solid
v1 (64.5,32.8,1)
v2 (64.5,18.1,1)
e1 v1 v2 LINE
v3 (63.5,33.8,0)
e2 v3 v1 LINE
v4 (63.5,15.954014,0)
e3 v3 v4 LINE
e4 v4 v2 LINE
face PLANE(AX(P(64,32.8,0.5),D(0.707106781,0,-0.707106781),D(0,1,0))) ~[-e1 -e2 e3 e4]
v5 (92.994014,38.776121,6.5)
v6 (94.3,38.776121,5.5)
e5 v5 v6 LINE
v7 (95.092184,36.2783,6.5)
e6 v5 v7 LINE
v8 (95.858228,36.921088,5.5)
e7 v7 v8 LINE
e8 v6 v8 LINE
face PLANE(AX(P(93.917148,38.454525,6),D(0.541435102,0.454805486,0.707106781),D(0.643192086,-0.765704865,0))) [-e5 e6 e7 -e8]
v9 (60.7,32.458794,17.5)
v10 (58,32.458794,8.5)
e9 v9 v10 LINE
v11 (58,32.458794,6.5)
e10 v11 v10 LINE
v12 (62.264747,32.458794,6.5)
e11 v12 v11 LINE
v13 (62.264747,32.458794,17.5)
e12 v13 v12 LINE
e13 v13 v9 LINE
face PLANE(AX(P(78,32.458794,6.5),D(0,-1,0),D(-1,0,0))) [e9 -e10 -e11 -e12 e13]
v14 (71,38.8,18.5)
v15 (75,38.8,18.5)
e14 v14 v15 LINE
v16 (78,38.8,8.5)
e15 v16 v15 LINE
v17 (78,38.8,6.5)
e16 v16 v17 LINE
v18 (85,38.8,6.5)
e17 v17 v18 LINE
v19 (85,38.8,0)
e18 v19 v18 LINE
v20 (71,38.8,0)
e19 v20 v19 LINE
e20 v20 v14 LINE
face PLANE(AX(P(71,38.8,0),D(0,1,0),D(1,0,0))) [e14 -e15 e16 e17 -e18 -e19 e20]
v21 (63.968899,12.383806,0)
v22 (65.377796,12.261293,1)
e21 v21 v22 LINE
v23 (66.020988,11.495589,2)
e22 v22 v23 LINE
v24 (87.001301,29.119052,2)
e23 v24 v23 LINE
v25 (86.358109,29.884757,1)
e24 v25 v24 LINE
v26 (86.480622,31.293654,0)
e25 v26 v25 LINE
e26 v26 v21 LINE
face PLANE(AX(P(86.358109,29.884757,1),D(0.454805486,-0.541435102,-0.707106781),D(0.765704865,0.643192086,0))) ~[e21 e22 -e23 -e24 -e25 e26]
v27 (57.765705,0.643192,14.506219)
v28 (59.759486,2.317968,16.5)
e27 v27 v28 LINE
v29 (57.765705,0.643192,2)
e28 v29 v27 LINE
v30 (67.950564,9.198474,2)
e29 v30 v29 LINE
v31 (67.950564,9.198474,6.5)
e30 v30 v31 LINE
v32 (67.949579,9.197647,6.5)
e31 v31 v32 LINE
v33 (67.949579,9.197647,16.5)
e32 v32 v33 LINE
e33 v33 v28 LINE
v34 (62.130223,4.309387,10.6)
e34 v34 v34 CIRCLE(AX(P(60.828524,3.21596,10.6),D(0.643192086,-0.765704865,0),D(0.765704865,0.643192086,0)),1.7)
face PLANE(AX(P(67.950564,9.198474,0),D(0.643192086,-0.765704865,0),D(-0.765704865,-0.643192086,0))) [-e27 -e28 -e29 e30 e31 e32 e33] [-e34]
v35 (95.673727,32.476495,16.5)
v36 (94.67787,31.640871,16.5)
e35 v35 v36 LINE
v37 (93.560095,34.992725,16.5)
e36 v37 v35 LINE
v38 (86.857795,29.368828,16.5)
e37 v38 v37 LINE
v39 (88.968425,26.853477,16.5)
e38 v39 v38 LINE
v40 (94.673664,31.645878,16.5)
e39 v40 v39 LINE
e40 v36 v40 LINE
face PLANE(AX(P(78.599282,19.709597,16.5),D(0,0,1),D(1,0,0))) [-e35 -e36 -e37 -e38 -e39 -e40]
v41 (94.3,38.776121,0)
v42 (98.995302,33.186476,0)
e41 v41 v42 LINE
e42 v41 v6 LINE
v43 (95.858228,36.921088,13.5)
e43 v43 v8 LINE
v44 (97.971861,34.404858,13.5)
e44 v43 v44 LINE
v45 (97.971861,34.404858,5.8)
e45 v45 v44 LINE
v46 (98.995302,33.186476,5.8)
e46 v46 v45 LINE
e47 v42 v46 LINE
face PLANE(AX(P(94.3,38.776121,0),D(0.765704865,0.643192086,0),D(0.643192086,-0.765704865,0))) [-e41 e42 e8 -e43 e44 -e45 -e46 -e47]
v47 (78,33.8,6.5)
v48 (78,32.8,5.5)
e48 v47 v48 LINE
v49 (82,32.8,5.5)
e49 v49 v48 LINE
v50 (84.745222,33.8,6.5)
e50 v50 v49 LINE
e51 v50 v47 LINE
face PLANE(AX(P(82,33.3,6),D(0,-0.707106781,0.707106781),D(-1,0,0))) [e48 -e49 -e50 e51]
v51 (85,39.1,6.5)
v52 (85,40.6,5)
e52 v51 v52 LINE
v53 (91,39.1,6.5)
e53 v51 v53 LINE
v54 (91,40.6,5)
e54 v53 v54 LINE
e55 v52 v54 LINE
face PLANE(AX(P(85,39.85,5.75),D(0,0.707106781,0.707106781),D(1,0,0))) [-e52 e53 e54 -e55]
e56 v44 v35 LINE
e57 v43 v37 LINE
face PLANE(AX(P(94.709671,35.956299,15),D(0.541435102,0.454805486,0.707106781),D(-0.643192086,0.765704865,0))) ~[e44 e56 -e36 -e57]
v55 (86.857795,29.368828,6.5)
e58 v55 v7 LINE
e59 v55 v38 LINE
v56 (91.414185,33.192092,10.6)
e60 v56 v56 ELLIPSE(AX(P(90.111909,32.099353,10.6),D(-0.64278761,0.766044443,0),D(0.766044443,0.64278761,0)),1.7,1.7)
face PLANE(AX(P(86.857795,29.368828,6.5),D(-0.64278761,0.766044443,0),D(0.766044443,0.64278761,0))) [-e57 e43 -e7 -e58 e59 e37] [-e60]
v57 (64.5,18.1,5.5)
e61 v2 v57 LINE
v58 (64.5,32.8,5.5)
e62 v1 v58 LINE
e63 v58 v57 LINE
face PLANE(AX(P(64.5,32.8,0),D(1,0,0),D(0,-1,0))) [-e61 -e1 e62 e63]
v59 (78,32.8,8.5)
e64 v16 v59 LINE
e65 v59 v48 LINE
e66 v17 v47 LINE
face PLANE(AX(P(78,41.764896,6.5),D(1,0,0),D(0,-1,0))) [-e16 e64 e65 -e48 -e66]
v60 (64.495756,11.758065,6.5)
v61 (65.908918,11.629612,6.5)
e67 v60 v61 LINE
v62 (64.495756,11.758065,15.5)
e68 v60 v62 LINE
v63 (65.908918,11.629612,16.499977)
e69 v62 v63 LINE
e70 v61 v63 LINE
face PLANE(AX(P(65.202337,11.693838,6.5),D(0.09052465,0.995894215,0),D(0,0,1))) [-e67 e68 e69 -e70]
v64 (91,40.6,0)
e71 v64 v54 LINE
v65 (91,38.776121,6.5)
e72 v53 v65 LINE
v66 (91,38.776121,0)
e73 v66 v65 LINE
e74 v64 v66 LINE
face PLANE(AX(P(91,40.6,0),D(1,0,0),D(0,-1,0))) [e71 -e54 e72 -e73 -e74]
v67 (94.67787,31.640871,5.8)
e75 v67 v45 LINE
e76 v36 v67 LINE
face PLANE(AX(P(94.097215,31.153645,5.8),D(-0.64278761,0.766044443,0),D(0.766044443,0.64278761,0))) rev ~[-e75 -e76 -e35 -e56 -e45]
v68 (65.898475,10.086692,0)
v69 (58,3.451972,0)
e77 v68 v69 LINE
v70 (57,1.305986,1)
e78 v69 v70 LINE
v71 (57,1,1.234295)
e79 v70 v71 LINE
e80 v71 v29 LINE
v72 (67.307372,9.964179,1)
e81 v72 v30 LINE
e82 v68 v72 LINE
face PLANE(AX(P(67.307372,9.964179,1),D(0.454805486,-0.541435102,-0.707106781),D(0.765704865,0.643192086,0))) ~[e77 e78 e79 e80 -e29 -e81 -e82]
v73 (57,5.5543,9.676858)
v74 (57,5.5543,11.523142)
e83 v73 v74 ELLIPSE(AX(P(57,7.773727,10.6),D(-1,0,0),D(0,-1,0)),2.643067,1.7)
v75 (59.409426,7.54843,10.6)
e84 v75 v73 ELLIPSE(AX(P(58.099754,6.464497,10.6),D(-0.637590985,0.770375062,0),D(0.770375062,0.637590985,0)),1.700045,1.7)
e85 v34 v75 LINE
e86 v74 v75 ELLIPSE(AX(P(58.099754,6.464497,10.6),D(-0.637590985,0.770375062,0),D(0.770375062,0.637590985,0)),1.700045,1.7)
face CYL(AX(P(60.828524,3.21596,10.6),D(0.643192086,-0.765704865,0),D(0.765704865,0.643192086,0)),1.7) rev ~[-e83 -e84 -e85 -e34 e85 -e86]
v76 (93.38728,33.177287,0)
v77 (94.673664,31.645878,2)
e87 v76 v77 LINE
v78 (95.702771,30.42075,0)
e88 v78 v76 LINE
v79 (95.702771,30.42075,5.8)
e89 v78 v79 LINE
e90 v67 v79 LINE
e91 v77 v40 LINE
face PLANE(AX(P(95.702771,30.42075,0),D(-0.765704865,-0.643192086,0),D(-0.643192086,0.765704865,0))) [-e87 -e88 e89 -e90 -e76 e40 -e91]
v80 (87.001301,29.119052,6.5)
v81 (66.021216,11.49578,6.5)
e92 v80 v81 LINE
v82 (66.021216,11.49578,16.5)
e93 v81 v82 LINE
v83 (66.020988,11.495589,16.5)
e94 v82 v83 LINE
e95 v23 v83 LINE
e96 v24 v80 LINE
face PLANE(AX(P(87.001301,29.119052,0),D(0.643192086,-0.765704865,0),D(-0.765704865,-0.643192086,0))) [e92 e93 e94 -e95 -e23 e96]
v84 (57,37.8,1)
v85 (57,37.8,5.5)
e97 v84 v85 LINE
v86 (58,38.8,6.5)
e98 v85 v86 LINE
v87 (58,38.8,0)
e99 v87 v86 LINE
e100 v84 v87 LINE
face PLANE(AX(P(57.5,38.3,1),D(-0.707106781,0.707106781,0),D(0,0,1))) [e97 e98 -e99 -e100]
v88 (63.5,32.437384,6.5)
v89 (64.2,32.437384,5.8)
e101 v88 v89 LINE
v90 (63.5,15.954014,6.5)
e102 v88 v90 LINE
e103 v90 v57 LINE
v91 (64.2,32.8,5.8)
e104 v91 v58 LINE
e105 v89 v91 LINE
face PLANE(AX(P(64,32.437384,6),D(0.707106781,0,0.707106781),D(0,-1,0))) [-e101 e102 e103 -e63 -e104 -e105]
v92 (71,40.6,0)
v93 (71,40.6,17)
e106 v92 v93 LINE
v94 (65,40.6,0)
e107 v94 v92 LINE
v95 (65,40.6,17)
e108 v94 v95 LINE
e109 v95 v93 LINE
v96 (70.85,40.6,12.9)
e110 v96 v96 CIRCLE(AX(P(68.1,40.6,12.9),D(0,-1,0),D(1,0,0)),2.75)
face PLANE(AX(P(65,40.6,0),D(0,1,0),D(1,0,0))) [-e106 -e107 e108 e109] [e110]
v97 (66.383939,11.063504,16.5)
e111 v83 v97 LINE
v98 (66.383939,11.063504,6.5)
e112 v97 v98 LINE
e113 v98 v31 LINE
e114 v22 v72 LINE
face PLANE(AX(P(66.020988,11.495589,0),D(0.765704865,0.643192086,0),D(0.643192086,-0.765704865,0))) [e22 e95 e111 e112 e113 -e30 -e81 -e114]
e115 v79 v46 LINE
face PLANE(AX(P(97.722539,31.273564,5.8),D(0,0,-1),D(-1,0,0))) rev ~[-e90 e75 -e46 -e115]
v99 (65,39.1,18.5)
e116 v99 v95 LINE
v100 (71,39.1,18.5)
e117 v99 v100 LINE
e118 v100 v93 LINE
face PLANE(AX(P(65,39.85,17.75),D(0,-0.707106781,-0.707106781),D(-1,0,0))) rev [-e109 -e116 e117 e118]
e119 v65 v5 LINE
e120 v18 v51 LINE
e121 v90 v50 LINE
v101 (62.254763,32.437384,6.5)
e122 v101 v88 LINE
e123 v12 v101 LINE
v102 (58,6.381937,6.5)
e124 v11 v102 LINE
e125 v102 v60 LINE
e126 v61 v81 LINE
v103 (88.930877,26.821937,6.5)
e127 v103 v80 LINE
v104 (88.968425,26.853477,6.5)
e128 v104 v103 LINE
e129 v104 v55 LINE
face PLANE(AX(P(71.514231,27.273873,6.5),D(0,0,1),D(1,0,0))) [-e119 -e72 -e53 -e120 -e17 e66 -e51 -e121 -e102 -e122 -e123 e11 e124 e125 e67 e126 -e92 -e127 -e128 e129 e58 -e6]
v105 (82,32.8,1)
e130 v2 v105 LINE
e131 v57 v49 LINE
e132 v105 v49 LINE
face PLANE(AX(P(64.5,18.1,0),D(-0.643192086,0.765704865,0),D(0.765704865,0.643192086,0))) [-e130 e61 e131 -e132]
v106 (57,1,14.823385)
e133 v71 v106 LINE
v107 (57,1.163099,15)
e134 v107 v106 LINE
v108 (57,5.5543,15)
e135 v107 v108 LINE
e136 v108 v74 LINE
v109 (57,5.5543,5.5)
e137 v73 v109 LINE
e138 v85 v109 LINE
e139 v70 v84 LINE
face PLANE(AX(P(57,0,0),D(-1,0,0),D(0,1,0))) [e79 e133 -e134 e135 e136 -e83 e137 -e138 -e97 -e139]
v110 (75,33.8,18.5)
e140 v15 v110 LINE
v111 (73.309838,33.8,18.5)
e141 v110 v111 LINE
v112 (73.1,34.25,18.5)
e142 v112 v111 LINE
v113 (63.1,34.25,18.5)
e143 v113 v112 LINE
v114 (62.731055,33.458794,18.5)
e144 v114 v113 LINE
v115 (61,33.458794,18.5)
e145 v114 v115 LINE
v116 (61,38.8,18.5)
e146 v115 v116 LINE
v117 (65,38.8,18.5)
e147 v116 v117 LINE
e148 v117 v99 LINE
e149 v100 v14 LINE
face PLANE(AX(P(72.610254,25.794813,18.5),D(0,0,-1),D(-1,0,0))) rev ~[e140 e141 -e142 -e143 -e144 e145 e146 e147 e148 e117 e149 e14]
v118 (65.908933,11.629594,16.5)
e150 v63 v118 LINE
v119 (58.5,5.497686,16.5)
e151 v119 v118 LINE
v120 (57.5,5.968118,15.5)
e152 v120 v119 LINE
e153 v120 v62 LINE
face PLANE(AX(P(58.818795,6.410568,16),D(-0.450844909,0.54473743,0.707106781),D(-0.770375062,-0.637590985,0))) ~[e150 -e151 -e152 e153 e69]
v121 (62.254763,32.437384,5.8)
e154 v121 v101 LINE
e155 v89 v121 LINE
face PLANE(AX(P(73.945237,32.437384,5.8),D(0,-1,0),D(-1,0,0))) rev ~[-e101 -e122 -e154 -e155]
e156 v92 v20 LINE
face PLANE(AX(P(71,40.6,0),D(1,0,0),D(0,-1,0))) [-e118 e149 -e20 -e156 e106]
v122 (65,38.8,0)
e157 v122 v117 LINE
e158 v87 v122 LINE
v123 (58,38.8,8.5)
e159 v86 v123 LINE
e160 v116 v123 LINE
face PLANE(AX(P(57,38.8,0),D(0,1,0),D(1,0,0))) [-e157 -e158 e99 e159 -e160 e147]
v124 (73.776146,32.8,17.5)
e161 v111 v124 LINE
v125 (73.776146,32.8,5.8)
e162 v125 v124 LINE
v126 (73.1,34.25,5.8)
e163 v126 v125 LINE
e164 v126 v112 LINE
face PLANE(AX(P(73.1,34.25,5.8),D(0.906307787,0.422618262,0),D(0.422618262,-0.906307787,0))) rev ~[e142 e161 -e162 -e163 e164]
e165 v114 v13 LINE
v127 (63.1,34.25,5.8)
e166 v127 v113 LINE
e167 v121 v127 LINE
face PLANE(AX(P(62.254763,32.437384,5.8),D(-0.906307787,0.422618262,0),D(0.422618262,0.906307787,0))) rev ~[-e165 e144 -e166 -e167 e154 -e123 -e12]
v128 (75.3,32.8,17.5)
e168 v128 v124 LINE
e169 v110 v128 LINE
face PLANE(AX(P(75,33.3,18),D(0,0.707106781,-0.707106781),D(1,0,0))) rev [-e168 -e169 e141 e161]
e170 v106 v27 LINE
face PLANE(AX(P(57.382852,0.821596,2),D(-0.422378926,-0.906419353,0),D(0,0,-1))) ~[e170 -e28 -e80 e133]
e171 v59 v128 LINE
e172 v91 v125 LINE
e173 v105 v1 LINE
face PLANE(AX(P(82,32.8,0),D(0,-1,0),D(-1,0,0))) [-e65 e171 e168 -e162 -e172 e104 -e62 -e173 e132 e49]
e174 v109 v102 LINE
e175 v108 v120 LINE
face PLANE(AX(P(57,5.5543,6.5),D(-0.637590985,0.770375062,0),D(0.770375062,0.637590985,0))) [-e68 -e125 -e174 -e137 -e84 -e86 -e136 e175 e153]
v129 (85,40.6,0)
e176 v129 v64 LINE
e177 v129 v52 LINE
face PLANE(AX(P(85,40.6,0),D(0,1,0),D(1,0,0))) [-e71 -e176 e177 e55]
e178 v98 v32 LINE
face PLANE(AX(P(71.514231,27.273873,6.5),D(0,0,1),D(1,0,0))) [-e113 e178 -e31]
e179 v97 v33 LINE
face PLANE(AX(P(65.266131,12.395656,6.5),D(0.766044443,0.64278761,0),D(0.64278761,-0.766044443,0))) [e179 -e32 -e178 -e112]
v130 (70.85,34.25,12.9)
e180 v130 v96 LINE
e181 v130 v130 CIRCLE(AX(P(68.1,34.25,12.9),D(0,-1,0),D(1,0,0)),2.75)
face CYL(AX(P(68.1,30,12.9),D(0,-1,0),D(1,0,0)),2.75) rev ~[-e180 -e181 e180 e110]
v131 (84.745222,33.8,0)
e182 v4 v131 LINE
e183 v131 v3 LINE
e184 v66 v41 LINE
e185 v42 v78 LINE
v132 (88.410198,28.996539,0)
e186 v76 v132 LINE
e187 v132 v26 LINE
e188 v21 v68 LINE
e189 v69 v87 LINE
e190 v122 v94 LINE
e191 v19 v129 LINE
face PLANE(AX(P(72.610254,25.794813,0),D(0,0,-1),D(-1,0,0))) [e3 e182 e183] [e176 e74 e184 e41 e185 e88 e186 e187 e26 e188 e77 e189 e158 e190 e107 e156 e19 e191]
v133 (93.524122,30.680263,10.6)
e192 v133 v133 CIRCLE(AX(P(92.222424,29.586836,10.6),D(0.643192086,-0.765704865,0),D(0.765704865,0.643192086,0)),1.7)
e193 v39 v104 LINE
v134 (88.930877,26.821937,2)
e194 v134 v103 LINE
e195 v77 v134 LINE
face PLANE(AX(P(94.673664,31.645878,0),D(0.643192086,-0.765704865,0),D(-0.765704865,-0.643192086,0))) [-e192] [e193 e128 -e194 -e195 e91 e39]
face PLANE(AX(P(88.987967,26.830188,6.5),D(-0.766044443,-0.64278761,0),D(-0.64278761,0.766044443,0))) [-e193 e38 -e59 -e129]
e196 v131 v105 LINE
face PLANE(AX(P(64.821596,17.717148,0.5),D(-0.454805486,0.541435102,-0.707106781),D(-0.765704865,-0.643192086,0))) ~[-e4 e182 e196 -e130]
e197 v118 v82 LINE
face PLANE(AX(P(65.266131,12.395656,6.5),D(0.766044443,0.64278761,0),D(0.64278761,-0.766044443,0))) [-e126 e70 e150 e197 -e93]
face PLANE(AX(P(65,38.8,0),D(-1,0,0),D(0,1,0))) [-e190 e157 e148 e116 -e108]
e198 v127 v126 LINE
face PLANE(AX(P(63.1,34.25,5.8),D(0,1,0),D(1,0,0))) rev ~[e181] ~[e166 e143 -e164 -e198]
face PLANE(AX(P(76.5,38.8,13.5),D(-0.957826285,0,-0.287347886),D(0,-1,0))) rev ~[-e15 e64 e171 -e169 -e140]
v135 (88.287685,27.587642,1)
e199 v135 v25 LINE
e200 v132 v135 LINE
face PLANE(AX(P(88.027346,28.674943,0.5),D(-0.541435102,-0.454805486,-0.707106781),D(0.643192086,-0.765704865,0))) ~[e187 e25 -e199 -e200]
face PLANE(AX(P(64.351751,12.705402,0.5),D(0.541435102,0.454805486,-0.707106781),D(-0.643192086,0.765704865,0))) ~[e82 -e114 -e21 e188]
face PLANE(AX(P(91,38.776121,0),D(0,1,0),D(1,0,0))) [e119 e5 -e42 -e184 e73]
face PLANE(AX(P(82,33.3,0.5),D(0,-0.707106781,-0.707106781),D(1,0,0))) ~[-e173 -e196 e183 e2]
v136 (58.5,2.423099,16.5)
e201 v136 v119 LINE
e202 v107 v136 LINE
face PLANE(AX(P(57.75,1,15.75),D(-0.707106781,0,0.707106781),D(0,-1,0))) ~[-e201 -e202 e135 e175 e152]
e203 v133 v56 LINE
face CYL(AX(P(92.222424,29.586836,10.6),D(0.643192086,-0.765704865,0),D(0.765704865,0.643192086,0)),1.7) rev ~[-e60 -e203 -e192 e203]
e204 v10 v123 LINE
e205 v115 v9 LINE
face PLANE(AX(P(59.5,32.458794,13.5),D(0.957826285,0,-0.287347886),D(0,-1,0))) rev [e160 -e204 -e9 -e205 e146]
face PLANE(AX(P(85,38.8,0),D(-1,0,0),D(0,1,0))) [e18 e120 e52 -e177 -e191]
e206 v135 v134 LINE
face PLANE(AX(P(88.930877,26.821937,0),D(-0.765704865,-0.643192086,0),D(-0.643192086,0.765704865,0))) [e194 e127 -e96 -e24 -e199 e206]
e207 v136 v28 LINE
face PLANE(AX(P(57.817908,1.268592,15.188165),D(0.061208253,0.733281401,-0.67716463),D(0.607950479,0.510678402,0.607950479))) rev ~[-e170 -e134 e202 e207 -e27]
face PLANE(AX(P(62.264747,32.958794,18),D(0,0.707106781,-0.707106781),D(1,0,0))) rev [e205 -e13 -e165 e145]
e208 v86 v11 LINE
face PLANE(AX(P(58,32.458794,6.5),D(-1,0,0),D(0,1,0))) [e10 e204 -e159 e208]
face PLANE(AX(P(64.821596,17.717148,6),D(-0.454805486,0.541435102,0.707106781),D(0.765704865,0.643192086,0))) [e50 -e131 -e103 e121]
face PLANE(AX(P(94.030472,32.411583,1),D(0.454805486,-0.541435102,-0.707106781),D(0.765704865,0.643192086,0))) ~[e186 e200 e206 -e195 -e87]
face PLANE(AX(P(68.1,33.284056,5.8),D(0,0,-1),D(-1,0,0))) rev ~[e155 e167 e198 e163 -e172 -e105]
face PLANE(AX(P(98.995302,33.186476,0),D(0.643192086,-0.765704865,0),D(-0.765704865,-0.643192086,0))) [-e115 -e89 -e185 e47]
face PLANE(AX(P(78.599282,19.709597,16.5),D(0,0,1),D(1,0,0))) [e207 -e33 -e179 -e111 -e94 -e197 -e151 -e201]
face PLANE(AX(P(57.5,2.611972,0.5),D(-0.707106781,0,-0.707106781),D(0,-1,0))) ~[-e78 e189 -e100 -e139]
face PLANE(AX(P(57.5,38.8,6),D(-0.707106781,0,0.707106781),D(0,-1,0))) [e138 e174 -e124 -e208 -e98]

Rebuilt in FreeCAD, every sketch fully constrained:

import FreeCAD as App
import Part
import Sketcher
Q = App.Units.Quantity


def edges_at(feature, points):
    """Names of the edges that pass closest to the given points."""
    edges = feature.Shape.Edges
    near = lambda p: min(range(len(edges)), key=lambda i: edges[i].distToShape(Part.Vertex(*p))[0])
    return sorted({f"Edge{near(p) + 1}" for p in points})

doc = App.newDocument("Part")
body = doc.addObject("PartDesign::Body", "Body")

# Sketch on XY plane
sketch1 = doc.addObject("Sketcher::SketchObject", "Sketch")
body.addObject(sketch1)
sketch1.AttachmentSupport = (doc.XY_Plane, [""])
sketch1.MapMode = "FlatFace"
sketch1.addGeometry(Part.LineSegment(App.Vector(8, 38.8, 0), App.Vector(0, 38.8, 0)), False)
sketch1.addGeometry(Part.LineSegment(App.Vector(0, 38.8, 0), App.Vector(0, 0, 0)), False)
sketch1.addGeometry(Part.LineSegment(App.Vector(0, 0, 0), App.Vector(11, 9.2, 0)), False)
sketch1.addGeometry(Part.LineSegment(App.Vector(11, 9.2, 0), App.Vector(9, 11.5, 0)), False)
sketch1.addGeometry(Part.LineSegment(App.Vector(9, 11.5, 0), App.Vector(30, 29.1, 0)), False)
sketch1.addGeometry(Part.LineSegment(App.Vector(30, 29.1, 0), App.Vector(31.9, 26.8, 0)), False)
sketch1.addGeometry(Part.LineSegment(App.Vector(31.9, 26.8, 0), App.Vector(37.7, 31.6, 0)), False)
sketch1.addGeometry(Part.LineSegment(App.Vector(37.7, 31.6, 0), App.Vector(38.7, 30.4, 0)), False)
sketch1.addGeometry(Part.LineSegment(App.Vector(38.7, 30.4, 0), App.Vector(42, 33.2, 0)), False)
sketch1.addGeometry(Part.LineSegment(App.Vector(42, 33.2, 0), App.Vector(37.3, 38.8, 0)), False)
sketch1.addGeometry(Part.LineSegment(App.Vector(37.3, 38.8, 0), App.Vector(34, 38.8, 0)), False)
sketch1.addGeometry(Part.LineSegment(App.Vector(34, 38.8, 0), App.Vector(34, 40.6, 0)), False)
sketch1.addGeometry(Part.LineSegment(App.Vector(34, 40.6, 0), App.Vector(28, 40.6, 0)), False)
sketch1.addGeometry(Part.LineSegment(App.Vector(28, 40.6, 0), App.Vector(28, 38.8, 0)), False)
sketch1.addGeometry(Part.LineSegment(App.Vector(28, 38.8, 0), App.Vector(14, 38.8, 0)), False)
sketch1.addGeometry(Part.LineSegment(App.Vector(14, 38.8, 0), App.Vector(14, 40.6, 0)), False)
sketch1.addGeometry(Part.LineSegment(App.Vector(14, 40.6, 0), App.Vector(8, 40.6, 0)), False)
sketch1.addGeometry(Part.LineSegment(App.Vector(8, 40.6, 0), App.Vector(8, 38.8, 0)), False)
sketch1.addGeometry(Part.LineSegment(App.Vector(7.5, 32.8, 0), App.Vector(25, 32.8, 0)), False)
sketch1.addGeometry(Part.LineSegment(App.Vector(25, 32.8, 0), App.Vector(7.5, 18.1, 0)), False)
sketch1.addGeometry(Part.LineSegment(App.Vector(7.5, 18.1, 0), App.Vector(7.5, 32.8, 0)), False)
sketch1.addConstraint(Sketcher.Constraint("Coincident", 0, 2, 1, 1))
sketch1.addConstraint(Sketcher.Constraint("Coincident", 1, 2, 2, 1))
sketch1.addConstraint(Sketcher.Constraint("Coincident", 2, 2, 3, 1))
sketch1.addConstraint(Sketcher.Constraint("Coincident", 3, 2, 4, 1))
sketch1.addConstraint(Sketcher.Constraint("Coincident", 4, 2, 5, 1))
sketch1.addConstraint(Sketcher.Constraint("Coincident", 5, 2, 6, 1))
sketch1.addConstraint(Sketcher.Constraint("Coincident", 6, 2, 7, 1))
sketch1.addConstraint(Sketcher.Constraint("Coincident", 7, 2, 8, 1))
sketch1.addConstraint(Sketcher.Constraint("Coincident", 8, 2, 9, 1))
sketch1.addConstraint(Sketcher.Constraint("Coincident", 9, 2, 10, 1))
sketch1.addConstraint(Sketcher.Constraint("Coincident", 10, 2, 11, 1))
sketch1.addConstraint(Sketcher.Constraint("Coincident", 11, 2, 12, 1))
sketch1.addConstraint(Sketcher.Constraint("Coincident", 12, 2, 13, 1))
sketch1.addConstraint(Sketcher.Constraint("Coincident", 13, 2, 14, 1))
sketch1.addConstraint(Sketcher.Constraint("Coincident", 14, 2, 15, 1))
sketch1.addConstraint(Sketcher.Constraint("Coincident", 15, 2, 16, 1))
sketch1.addConstraint(Sketcher.Constraint("Coincident", 16, 2, 17, 1))
sketch1.addConstraint(Sketcher.Constraint("Coincident", 17, 2, 0, 1))
sketch1.addConstraint(Sketcher.Constraint("Coincident", 18, 2, 19, 1))
sketch1.addConstraint(Sketcher.Constraint("Coincident", 19, 2, 20, 1))
sketch1.addConstraint(Sketcher.Constraint("Coincident", 20, 2, 18, 1))
sketch1.addConstraint(Sketcher.Constraint("Horizontal", 0))
sketch1.addConstraint(Sketcher.Constraint("Vertical", 1))
sketch1.addConstraint(Sketcher.Constraint("Horizontal", 10))
sketch1.addConstraint(Sketcher.Constraint("Vertical", 11))
sketch1.addConstraint(Sketcher.Constraint("Horizontal", 12))
sketch1.addConstraint(Sketcher.Constraint("Vertical", 13))
sketch1.addConstraint(Sketcher.Constraint("Horizontal", 14))
sketch1.addConstraint(Sketcher.Constraint("Vertical", 15))
sketch1.addConstraint(Sketcher.Constraint("Horizontal", 16))
sketch1.addConstraint(Sketcher.Constraint("Vertical", 17))
sketch1.addConstraint(Sketcher.Constraint("Horizontal", 18))
sketch1.addConstraint(Sketcher.Constraint("Vertical", 20))
sketch1.addConstraint(Sketcher.Constraint("Coincident", 1, 2, -1, 1))
sketch1.addConstraint(Sketcher.Constraint("Perpendicular", 2, 3))
sketch1.addConstraint(Sketcher.Constraint("Perpendicular", 3, 4))
sketch1.addConstraint(Sketcher.Constraint("Perpendicular", 4, 5))
sketch1.addConstraint(Sketcher.Constraint("Perpendicular", 5, 6))
sketch1.addConstraint(Sketcher.Constraint("Perpendicular", 6, 7))
sketch1.addConstraint(Sketcher.Constraint("Perpendicular", 7, 8))
sketch1.addConstraint(Sketcher.Constraint("Perpendicular", 8, 9))
sketch1.addConstraint(Sketcher.Constraint("Perpendicular", 9, 19))
sketch1.addConstraint(Sketcher.Constraint("Horizontal", 0, 2, 13, 2))
sketch1.addConstraint(Sketcher.Constraint("Horizontal", 12, 2, 15, 2))
sketch1.addConstraint(Sketcher.Constraint("Equal", 12, 16))
sketch1.addConstraint(Sketcher.Constraint("Equal", 3, 5))
sketch1.addConstraint(Sketcher.Constraint("DistanceX", 0, 2, 0, 1, Q("8 mm")))
sketch1.addConstraint(Sketcher.Constraint("DistanceX", 12, 2, 12, 1, Q("6 mm")))
sketch1.addConstraint(Sketcher.Constraint("DistanceX", 14, 2, 14, 1, Q("14 mm")))
sketch1.addConstraint(Sketcher.Constraint("Distance", 3, Q("3 mm")))
sketch1.addConstraint(Sketcher.Constraint("DistanceX", 10, 2, 10, 1, Q("3.3 mm")))
sketch1.addConstraint(Sketcher.Constraint("DistanceX", 18, 1, 18, 2, Q("17.5 mm")))
sketch1.addConstraint(Sketcher.Constraint("DistanceY", 1, 2, 1, 1, Q("38.8 mm")))
sketch1.addConstraint(Sketcher.Constraint("DistanceY", 13, 2, 13, 1, Q("1.8 mm")))
sketch1.addConstraint(Sketcher.Constraint("DistanceY", 20, 1, 20, 2, Q("14.7 mm")))
sketch1.addConstraint(Sketcher.Constraint("DistanceX", -1, 1, 18, 2, Q("25 mm")))
sketch1.addConstraint(Sketcher.Constraint("DistanceY", 18, 2, 13, 2, Q("6 mm")))
sketch1.addConstraint(Sketcher.Constraint("Distance", 4, Q("27.4 mm")))
sketch1.addConstraint(Sketcher.Constraint("Distance", 6, Q("7.5 mm")))
sketch1.addConstraint(Sketcher.Constraint("Distance", 7, Q("1.6 mm")))
sketch1.addConstraint(Sketcher.Constraint("Distance", 8, Q("4.3 mm")))
sketch1.addConstraint(Sketcher.Constraint("Distance", 9, Q("7.3 mm")))
pad1 = doc.addObject("PartDesign::Pad", "Pad")
body.addObject(pad1)
pad1.Profile = sketch1
pad1.Length = 18.5

# Sketch on XY plane
sketch2 = doc.addObject("Sketcher::SketchObject", "Sketch001")
body.addObject(sketch2)
sketch2.AttachmentSupport = (doc.XY_Plane, [""])
sketch2.MapMode = "FlatFace"
sketch2.AttachmentOffset = App.Placement(App.Vector(0, 0, 6.5), App.Rotation())
sketch2.addGeometry(Part.LineSegment(App.Vector(0, 5.6, 0), App.Vector(8.3, 12.4, 0)), False)
sketch2.addGeometry(Part.LineSegment(App.Vector(8.3, 12.4, 0), App.Vector(11, 9.2, 0)), False)
sketch2.addGeometry(Part.LineSegment(App.Vector(11, 9.2, 0), App.Vector(32, 26.8, 0)), False)
sketch2.addGeometry(Part.LineSegment(App.Vector(32, 26.8, 0), App.Vector(29.9, 29.4, 0)), False)
sketch2.addGeometry(Part.LineSegment(App.Vector(29.9, 29.4, 0), App.Vector(38.9, 37, 0)), False)
sketch2.addGeometry(Part.LineSegment(App.Vector(38.9, 37, 0), App.Vector(34.9, 41.8, 0)), False)
sketch2.addGeometry(Part.LineSegment(App.Vector(34.9, 41.8, 0), App.Vector(21, 41.8, 0)), False)
sketch2.addGeometry(Part.LineSegment(App.Vector(21, 41.8, 0), App.Vector(21, 32.5, 0)), False)
sketch2.addGeometry(Part.LineSegment(App.Vector(21, 32.5, 0), App.Vector(1, 32.5, 0)), False)
sketch2.addGeometry(Part.LineSegment(App.Vector(1, 32.5, 0), App.Vector(1, 41.8, 0)), False)
sketch2.addGeometry(Part.LineSegment(App.Vector(1, 41.8, 0), App.Vector(0, 41.8, 0)), False)
sketch2.addGeometry(Part.LineSegment(App.Vector(0, 41.8, 0), App.Vector(0, 5.6, 0)), False)
sketch2.addConstraint(Sketcher.Constraint("Coincident", 0, 2, 1, 1))
sketch2.addConstraint(Sketcher.Constraint("Coincident", 1, 2, 2, 1))
sketch2.addConstraint(Sketcher.Constraint("Coincident", 2, 2, 3, 1))
sketch2.addConstraint(Sketcher.Constraint("Coincident", 3, 2, 4, 1))
sketch2.addConstraint(Sketcher.Constraint("Coincident", 4, 2, 5, 1))
sketch2.addConstraint(Sketcher.Constraint("Coincident", 5, 2, 6, 1))
sketch2.addConstraint(Sketcher.Constraint("Coincident", 6, 2, 7, 1))
sketch2.addConstraint(Sketcher.Constraint("Coincident", 7, 2, 8, 1))
sketch2.addConstraint(Sketcher.Constraint("Coincident", 8, 2, 9, 1))
sketch2.addConstraint(Sketcher.Constraint("Coincident", 9, 2, 10, 1))
sketch2.addConstraint(Sketcher.Constraint("Coincident", 10, 2, 11, 1))
sketch2.addConstraint(Sketcher.Constraint("Coincident", 11, 2, 0, 1))
sketch2.addConstraint(Sketcher.Constraint("Horizontal", 6))
sketch2.addConstraint(Sketcher.Constraint("Vertical", 7))
sketch2.addConstraint(Sketcher.Constraint("Horizontal", 8))
sketch2.addConstraint(Sketcher.Constraint("Vertical", 9))
sketch2.addConstraint(Sketcher.Constraint("Vertical", 11))
sketch2.addConstraint(Sketcher.Constraint("PointOnObject", 10, 2, -2))
sketch2.addConstraint(Sketcher.Constraint("Perpendicular", 1, 2))
sketch2.addConstraint(Sketcher.Constraint("Perpendicular", 2, 3))
sketch2.addConstraint(Sketcher.Constraint("Perpendicular", 3, 4))
sketch2.addConstraint(Sketcher.Constraint("Perpendicular", 4, 5))
sketch2.addConstraint(Sketcher.Constraint("Horizontal", 6, 2, 10, 2))
sketch2.addConstraint(Sketcher.Constraint("DistanceX", 8, 2, 8, 1, Q("20 mm")))
sketch2.addConstraint(Sketcher.Constraint("Angle", 1, Q("-50 deg")))
sketch2.addConstraint(Sketcher.Constraint("DistanceX", -1, 1, 6, 2, Q("21 mm")))
sketch2.addConstraint(Sketcher.Constraint("DistanceY", -1, 1, 11, 2, Q("5.5543 mm")))
sketch2.addConstraint(Sketcher.Constraint("DistanceY", 0, 2, 9, 2, Q("29.363602 mm")))
sketch2.addConstraint(Sketcher.Constraint("Distance", 0, Q("10.730008 mm")))
sketch2.addConstraint(Sketcher.Constraint("Distance", 1, Q("4.19061 mm")))
sketch2.addConstraint(Sketcher.Constraint("Distance", 2, Q("27.450319 mm")))
sketch2.addConstraint(Sketcher.Constraint("Distance", 3, Q("3.313959 mm")))
sketch2.addConstraint(Sketcher.Constraint("Distance", 4, Q("11.823679 mm")))
sketch2.addConstraint(Sketcher.Constraint("DistanceX", 6, 2, 6, 1, Q("13.890976 mm")))
sketch2.addConstraint(Sketcher.Constraint("DistanceY", 7, 2, 7, 1, Q("9.306102 mm")))
sketch2.addConstraint(Sketcher.Constraint("DistanceY", 9, 1, 9, 2, Q("9.300464 mm")))
pocket1 = doc.addObject("PartDesign::Pocket", "Pocket")
body.addObject(pocket1)
pocket1.Profile = sketch2
pocket1.Length = 13
pocket1.Reversed = True

# Sketch on XY plane
sketch3 = doc.addObject("Sketcher::SketchObject", "Sketch002")
body.addObject(sketch3)
sketch3.AttachmentSupport = (doc.XY_Plane, [""])
sketch3.MapMode = "FlatFace"
sketch3.AttachmentOffset = App.Placement(App.Vector(0, 0, 16.5), App.Rotation())
sketch3.addGeometry(Part.LineSegment(App.Vector(-1, -4, 0), App.Vector(49, 38, 0)), False)
sketch3.addGeometry(Part.LineSegment(App.Vector(49, 38, 0), App.Vector(44, 44, 0)), False)
sketch3.addGeometry(Part.LineSegment(App.Vector(44, 44, 0), App.Vector(-6, 2, 0)), False)
sketch3.addGeometry(Part.LineSegment(App.Vector(-6, 2, 0), App.Vector(-1, -4, 0)), False)
sketch3.addConstraint(Sketcher.Constraint("Coincident", 0, 2, 1, 1))
sketch3.addConstraint(Sketcher.Constraint("Coincident", 1, 2, 2, 1))
sketch3.addConstraint(Sketcher.Constraint("Coincident", 2, 2, 3, 1))
sketch3.addConstraint(Sketcher.Constraint("Coincident", 3, 2, 0, 1))
sketch3.addConstraint(Sketcher.Constraint("Perpendicular", 0, 1))
sketch3.addConstraint(Sketcher.Constraint("Perpendicular", 1, 2))
sketch3.addConstraint(Sketcher.Constraint("Perpendicular", 2, 3))
sketch3.addConstraint(Sketcher.Constraint("Angle", 0, Q("40 deg")))
sketch3.addConstraint(Sketcher.Constraint("Distance", 1, Q("8 mm")))
sketch3.addConstraint(Sketcher.Constraint("DistanceY", -1, 1, 0, 2, Q("37.6435 mm")))
sketch3.addConstraint(Sketcher.Constraint("Distance", 0, Q("65.33443 mm")))
sketch3.addConstraint(Sketcher.Constraint("DistanceX", -1, 1, 0, 2, Q("49.194971 mm")))
pocket2 = doc.addObject("PartDesign::Pocket", "Pocket001")
body.addObject(pocket2)
pocket2.Profile = sketch3
pocket2.Length = 5
pocket2.Reversed = True

# Sketch on XY plane
sketch4 = doc.addObject("Sketcher::SketchObject", "Sketch003")
body.addObject(sketch4)
sketch4.AttachmentSupport = (doc.XY_Plane, [""])
sketch4.MapMode = "FlatFace"
sketch4.AttachmentOffset = App.Placement(App.Vector(0, 0, 5.8), App.Rotation())
sketch4.addGeometry(Part.LineSegment(App.Vector(41.5, 34.8, 0), App.Vector(37.1, 31.2, 0)), False)
sketch4.addGeometry(Part.LineSegment(App.Vector(37.1, 31.2, 0), App.Vector(40, 27.7, 0)), False)
sketch4.addGeometry(Part.LineSegment(App.Vector(40, 27.7, 0), App.Vector(44.3, 31.4, 0)), False)
sketch4.addGeometry(Part.LineSegment(App.Vector(44.3, 31.4, 0), App.Vector(41.5, 34.8, 0)), False)
sketch4.addGeometry(Part.LineSegment(App.Vector(16.1, 34.2, 0), App.Vector(6.1, 34.2, 0)), False)
sketch4.addGeometry(Part.LineSegment(App.Vector(6.1, 34.2, 0), App.Vector(5.3, 32.4, 0)), False)
sketch4.addGeometry(Part.LineSegment(App.Vector(5.3, 32.4, 0), App.Vector(16.9, 32.4, 0)), False)
sketch4.addGeometry(Part.LineSegment(App.Vector(16.9, 32.4, 0), App.Vector(16.1, 34.2, 0)), False)
sketch4.addConstraint(Sketcher.Constraint("Coincident", 0, 2, 1, 1))
sketch4.addConstraint(Sketcher.Constraint("Coincident", 1, 2, 2, 1))
sketch4.addConstraint(Sketcher.Constraint("Coincident", 2, 2, 3, 1))
sketch4.addConstraint(Sketcher.Constraint("Coincident", 3, 2, 0, 1))
sketch4.addConstraint(Sketcher.Constraint("Coincident", 4, 2, 5, 1))
sketch4.addConstraint(Sketcher.Constraint("Coincident", 5, 2, 6, 1))
sketch4.addConstraint(Sketcher.Constraint("Coincident", 6, 2, 7, 1))
sketch4.addConstraint(Sketcher.Constraint("Coincident", 7, 2, 4, 1))
sketch4.addConstraint(Sketcher.Constraint("Horizontal", 4))
sketch4.addConstraint(Sketcher.Constraint("Horizontal", 6))
sketch4.addConstraint(Sketcher.Constraint("Perpendicular", 0, 1))
sketch4.addConstraint(Sketcher.Constraint("Perpendicular", 1, 2))
sketch4.addConstraint(Sketcher.Constraint("Perpendicular", 2, 3))
sketch4.addConstraint(Sketcher.Constraint("Equal", 5, 7))
sketch4.addConstraint(Sketcher.Constraint("DistanceX", 4, 2, 4, 1, Q("10 mm")))
sketch4.addConstraint(Sketcher.Constraint("Angle", 0, Q("-140 deg")))
sketch4.addConstraint(Sketcher.Constraint("Angle", 5, Q("-115 deg")))
sketch4.addConstraint(Sketcher.Constraint("Distance", 5, Q("2 mm")))
sketch4.addConstraint(Sketcher.Constraint("DistanceX", -1, 1, 4, 2, Q("6.1 mm")))
sketch4.addConstraint(Sketcher.Constraint("DistanceY", -1, 1, 4, 2, Q("34.25 mm")))
sketch4.addConstraint(Sketcher.Constraint("Distance", 1, Q("4.476899 mm")))
sketch4.addConstraint(Sketcher.Constraint("DistanceY", 5, 2, 3, 2, Q("2.385602 mm")))
sketch4.addConstraint(Sketcher.Constraint("DistanceX", 5, 2, 2, 2, Q("39.093099 mm")))
sketch4.addConstraint(Sketcher.Constraint("DistanceX", -1, 1, 1, 2, Q("39.974911 mm")))
pocket3 = doc.addObject("PartDesign::Pocket", "Pocket002")
body.addObject(pocket3)
pocket3.Profile = sketch4
pocket3.Length = 15
pocket3.Reversed = True
doc.recompute()

chamfer = doc.addObject("PartDesign::Chamfer", "Chamfer")
body.addObject(chamfer)
chamfer.Base = (pocket3, edges_at(pocket3, [(39.915, 35.663, 16.5)]))
chamfer.Size = 3
doc.recompute()

chamfer2 = doc.addObject("PartDesign::Chamfer", "Chamfer001")
body.addObject(chamfer2)
chamfer2.Base = (chamfer, edges_at(chamfer, [(5.475, 4.599, 0), (19.511, 20.307, 0), (34.802, 29.234, 0)]))
chamfer2.Size = 2
doc.recompute()

chamfer3 = doc.addObject("PartDesign::Chamfer", "Chamfer002")
body.addObject(chamfer3)
chamfer3.Base = (chamfer2, edges_at(chamfer2, [
    (8.699, 11.878, 0),
    (8.699, 11.878, 0),
    (29.68, 29.502, 0),
    (29.68, 29.502, 0),
]))
chamfer3.Size = 1
doc.recompute()

chamfer4 = doc.addObject("PartDesign::Chamfer", "Chamfer003")
body.addObject(chamfer4)
chamfer4.Base = (chamfer3, edges_at(chamfer3, [(7.5, 25.45, 0), (16.25, 25.45, 0), (16.25, 32.8, 0)]))
chamfer4.Size = 1
doc.recompute()

chamfer5 = doc.addObject("PartDesign::Chamfer", "Chamfer004")
body.addObject(chamfer5)
chamfer5.Base = (chamfer4, edges_at(chamfer4, [(0, 20.706, 0), (0, 22.177, 6.5)]))
chamfer5.Size = 1
doc.recompute()

chamfer6 = doc.addObject("PartDesign::Chamfer", "Chamfer005")
body.addObject(chamfer6)
chamfer6.Base = (chamfer5, edges_at(chamfer5, [(0, 38.8, 3.25)]))
chamfer6.Size = 1
doc.recompute()

chamfer7 = doc.addObject("PartDesign::Chamfer", "Chamfer006")
body.addObject(chamfer7)
chamfer7.Base = (chamfer6, edges_at(chamfer6, [(0, 0, 9.25)]))
chamfer7.Size = 1
doc.recompute()

chamfer8 = doc.addObject("PartDesign::Chamfer", "Chamfer007")
body.addObject(chamfer8)
chamfer8.Base = (chamfer7, edges_at(chamfer7, [(0, 3.277, 16.5)]))
chamfer8.Size = 1.5
doc.recompute()

chamfer9 = doc.addObject("PartDesign::Chamfer", "Chamfer008")
body.addObject(chamfer9)
chamfer9.Base = (chamfer8, edges_at(chamfer8, [(4.883, 9.596, 16.5)]))
chamfer9.Size = 1
doc.recompute()

chamfer10 = doc.addObject("PartDesign::Chamfer", "Chamfer009")
body.addObject(chamfer10)
chamfer10.Base = (chamfer9, edges_at(chamfer9, [(1.133, 0.952, 16.133)]))
chamfer10.Size = 1
doc.recompute()

chamfer11 = doc.addObject("PartDesign::Chamfer", "Chamfer010")
body.addObject(chamfer11)
chamfer11.Base = (chamfer10, edges_at(chamfer10, [(8.266, 12.396, 11)]))
chamfer11.Size = 1
doc.recompute()

chamfer12 = doc.addObject("PartDesign::Chamfer", "Chamfer011")
body.addObject(chamfer12)
chamfer12.Base = (chamfer11, edges_at(chamfer11, [(38.079, 37.849, 6.5)]))
chamfer12.Size = 1
doc.recompute()

chamfer13 = doc.addObject("PartDesign::Chamfer", "Chamfer012")
body.addObject(chamfer13)
chamfer13.Base = (chamfer12, edges_at(chamfer12, [(31, 40.6, 6.5)]))
chamfer13.Size = 1.5
doc.recompute()

chamfer14 = doc.addObject("PartDesign::Chamfer", "Chamfer013")
body.addObject(chamfer14)
chamfer14.Base = (chamfer13, edges_at(chamfer13, [(21, 35.8, 18.5)]))
chamfer14.ChamferType = "Two distances"
chamfer14.Size = 10
chamfer14.Size2 = 3
doc.recompute()

chamfer15 = doc.addObject("PartDesign::Chamfer", "Chamfer014")
body.addObject(chamfer15)
chamfer15.Base = (chamfer14, edges_at(chamfer14, [(1, 35.629, 18.5)]))
chamfer15.ChamferType = "Two distances"
chamfer15.Size = 3
chamfer15.Size2 = 10
doc.recompute()

chamfer16 = doc.addObject("PartDesign::Chamfer", "Chamfer015")
body.addObject(chamfer16)
chamfer16.Base = (chamfer15, edges_at(chamfer15, [(17.388, 32.8, 18.5), (4.632, 32.459, 18.5)]))
chamfer16.Size = 1
doc.recompute()

chamfer17 = doc.addObject("PartDesign::Chamfer", "Chamfer016")
body.addObject(chamfer17)
chamfer17.Base = (chamfer16, edges_at(chamfer16, [(11, 40.6, 18.5)]))
chamfer17.Size = 1.5
doc.recompute()

chamfer18 = doc.addObject("PartDesign::Chamfer", "Chamfer017")
body.addObject(chamfer18)
chamfer18.Base = (chamfer17, edges_at(chamfer17, [(23, 32.8, 6.5), (16.25, 25.45, 6.5), (7.5, 25.269, 6.5)]))
chamfer18.Size = 1

# Sketch on XZ plane
sketch5 = doc.addObject("Sketcher::SketchObject", "Sketch004")
body.addObject(sketch5)
sketch5.AttachmentSupport = (doc.XZ_Plane, [""])
sketch5.MapMode = "FlatFace"
sketch5.AttachmentOffset = App.Placement(App.Vector(0, 0, -30), App.Rotation())
sketch5.addGeometry(Part.Circle(App.Vector(11.1, 12.9, 0), App.Vector(0, 0, 1), 2.8), False)
sketch5.addConstraint(Sketcher.Constraint("Diameter", 0, Q("5.5 mm")))
sketch5.addConstraint(Sketcher.Constraint("DistanceX", -1, 1, 0, 3, Q("11.1 mm")))
sketch5.addConstraint(Sketcher.Constraint("DistanceY", -1, 1, 0, 3, Q("12.9 mm")))
pocket4 = doc.addObject("PartDesign::Pocket", "Pocket003")
body.addObject(pocket4)
pocket4.Profile = sketch5
pocket4.Length = 12

# Sketch on an angled plane
sketch6 = doc.addObject("Sketcher::SketchObject", "Sketch005")
body.addObject(sketch6)
sketch6.Placement = App.Placement(App.Vector(0, 0, 0), App.Rotation(App.Vector(0.765704865, 0.643192086, 0), App.Vector(0, 0, 1), App.Vector(0.643192086, -0.765704865, 0), "ZXY"))
sketch6.addGeometry(Part.Circle(App.Vector(5, 10.6, 0), App.Vector(0, 0, 1), 1.7), False)
sketch6.addGeometry(Part.Circle(App.Vector(46, 10.6, 0), App.Vector(0, 0, 1), 1.7), False)
sketch6.addConstraint(Sketcher.Constraint("Equal", 0, 1))
sketch6.addConstraint(Sketcher.Constraint("Horizontal", 0, 3, 1, 3))
sketch6.addConstraint(Sketcher.Constraint("Diameter", 0, Q("3.4 mm")))
sketch6.addConstraint(Sketcher.Constraint("DistanceX", -1, 1, 0, 3, Q("5 mm")))
sketch6.addConstraint(Sketcher.Constraint("DistanceX", -1, 1, 1, 3, Q("46 mm")))
sketch6.addConstraint(Sketcher.Constraint("DistanceY", -1, 1, 0, 3, Q("10.6 mm")))
pocket5 = doc.addObject("PartDesign::Pocket", "Pocket004")
body.addObject(pocket5)
pocket5.Profile = sketch6
pocket5.Length = 5
body2 = doc.addObject("PartDesign::Body", "Body001")
doc.recompute()

body.Placement = App.Placement(App.Vector(57, 0, 0), App.Rotation(App.Vector(0, 0, 1), 0))
boolean = doc.addObject("PartDesign::Boolean", "Boolean")
body2.addObject(boolean)
boolean.Type = "Fuse"
boolean.addObjects([body])

doc.recompute()
